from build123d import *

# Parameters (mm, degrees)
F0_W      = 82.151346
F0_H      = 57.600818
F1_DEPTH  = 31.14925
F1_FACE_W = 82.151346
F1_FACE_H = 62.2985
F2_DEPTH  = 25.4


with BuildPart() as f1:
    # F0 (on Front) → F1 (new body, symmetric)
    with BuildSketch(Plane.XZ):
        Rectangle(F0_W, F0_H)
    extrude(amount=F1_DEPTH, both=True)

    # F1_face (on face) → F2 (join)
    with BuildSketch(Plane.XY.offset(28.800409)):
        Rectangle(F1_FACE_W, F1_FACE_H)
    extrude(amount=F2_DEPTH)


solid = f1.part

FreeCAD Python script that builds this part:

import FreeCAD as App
import Part
import Sketcher
Q = App.Units.Quantity

doc = App.newDocument("Part")
body = doc.addObject("PartDesign::Body", "Body")

# Sketch on XZ plane
sketch1 = doc.addObject("Sketcher::SketchObject", "Sketch")
body.addObject(sketch1)
sketch1.AttachmentSupport = (doc.XZ_Plane, [""])
sketch1.MapMode = "FlatFace"
sketch1.addGeometry(Part.LineSegment(App.Vector(-41.075673, 28.800409, 0), App.Vector(-41.075673, -28.800409, 0)), False)
sketch1.addGeometry(Part.LineSegment(App.Vector(-41.075673, -28.800409, 0), App.Vector(41.075673, -28.800409, 0)), False)
sketch1.addGeometry(Part.LineSegment(App.Vector(41.075673, -28.800409, 0), App.Vector(41.075673, 28.800409, 0)), False)
sketch1.addGeometry(Part.LineSegment(App.Vector(41.075673, 28.800409, 0), App.Vector(-41.075673, 28.800409, 0)), False)
sketch1.addConstraint(Sketcher.Constraint("Coincident", 0, 2, 1, 1))
sketch1.addConstraint(Sketcher.Constraint("Coincident", 1, 2, 2, 1))
sketch1.addConstraint(Sketcher.Constraint("Coincident", 2, 2, 3, 1))
sketch1.addConstraint(Sketcher.Constraint("Coincident", 3, 2, 0, 1))
sketch1.addConstraint(Sketcher.Constraint("Vertical", 0))
sketch1.addConstraint(Sketcher.Constraint("Horizontal", 1))
sketch1.addConstraint(Sketcher.Constraint("Vertical", 2))
sketch1.addConstraint(Sketcher.Constraint("Horizontal", 3))
sketch1.addConstraint(Sketcher.Constraint("Symmetric", 0, 2, 2, 2, -1, 1))
sketch1.addConstraint(Sketcher.Constraint("DistanceX", 1, 1, 1, 2, Q("82.151346 mm")))
sketch1.addConstraint(Sketcher.Constraint("DistanceY", 0, 2, 0, 1, Q("57.600818 mm")))
pad1 = doc.addObject("PartDesign::Pad", "Pad")
body.addObject(pad1)
pad1.Profile = sketch1
pad1.Length = 62.2985
pad1.Midplane = True

# Sketch on XY plane
sketch2 = doc.addObject("Sketcher::SketchObject", "Sketch001")
body.addObject(sketch2)
sketch2.AttachmentSupport = (doc.XY_Plane, [""])
sketch2.MapMode = "FlatFace"
sketch2.AttachmentOffset = App.Placement(App.Vector(0, 0, 28.800409), App.Rotation())
sketch2.addGeometry(Part.LineSegment(App.Vector(-41.075673, 31.14925, 0), App.Vector(-41.075673, -31.14925, 0)), False)
sketch2.addGeometry(Part.LineSegment(App.Vector(-41.075673, -31.14925, 0), App.Vector(41.075673, -31.14925, 0)), False)
sketch2.addGeometry(Part.LineSegment(App.Vector(41.075673, -31.14925, 0), App.Vector(41.075673, 31.14925, 0)), False)
sketch2.addGeometry(Part.LineSegment(App.Vector(41.075673, 31.14925, 0), App.Vector(-41.075673, 31.14925, 0)), False)
sketch2.addConstraint(Sketcher.Constraint("Coincident", 0, 2, 1, 1))
sketch2.addConstraint(Sketcher.Constraint("Coincident", 1, 2, 2, 1))
sketch2.addConstraint(Sketcher.Constraint("Coincident", 2, 2, 3, 1))
sketch2.addConstraint(Sketcher.Constraint("Coincident", 3, 2, 0, 1))
sketch2.addConstraint(Sketcher.Constraint("Vertical", 0))
sketch2.addConstraint(Sketcher.Constraint("Horizontal", 1))
sketch2.addConstraint(Sketcher.Constraint("Vertical", 2))
sketch2.addConstraint(Sketcher.Constraint("Horizontal", 3))
sketch2.addConstraint(Sketcher.Constraint("Symmetric", 0, 2, 2, 2, -1, 1))
sketch2.addConstraint(Sketcher.Constraint("DistanceY", 0, 2, 0, 1, Q("62.2985 mm")))
sketch2.addConstraint(Sketcher.Constraint("DistanceX", 1, 1, 1, 2, Q("82.151346 mm")))
pad2 = doc.addObject("PartDesign::Pad", "Pad001")
body.addObject(pad2)
pad2.Profile = sketch2
pad2.Length = Q("1 in")

doc.recompute()
